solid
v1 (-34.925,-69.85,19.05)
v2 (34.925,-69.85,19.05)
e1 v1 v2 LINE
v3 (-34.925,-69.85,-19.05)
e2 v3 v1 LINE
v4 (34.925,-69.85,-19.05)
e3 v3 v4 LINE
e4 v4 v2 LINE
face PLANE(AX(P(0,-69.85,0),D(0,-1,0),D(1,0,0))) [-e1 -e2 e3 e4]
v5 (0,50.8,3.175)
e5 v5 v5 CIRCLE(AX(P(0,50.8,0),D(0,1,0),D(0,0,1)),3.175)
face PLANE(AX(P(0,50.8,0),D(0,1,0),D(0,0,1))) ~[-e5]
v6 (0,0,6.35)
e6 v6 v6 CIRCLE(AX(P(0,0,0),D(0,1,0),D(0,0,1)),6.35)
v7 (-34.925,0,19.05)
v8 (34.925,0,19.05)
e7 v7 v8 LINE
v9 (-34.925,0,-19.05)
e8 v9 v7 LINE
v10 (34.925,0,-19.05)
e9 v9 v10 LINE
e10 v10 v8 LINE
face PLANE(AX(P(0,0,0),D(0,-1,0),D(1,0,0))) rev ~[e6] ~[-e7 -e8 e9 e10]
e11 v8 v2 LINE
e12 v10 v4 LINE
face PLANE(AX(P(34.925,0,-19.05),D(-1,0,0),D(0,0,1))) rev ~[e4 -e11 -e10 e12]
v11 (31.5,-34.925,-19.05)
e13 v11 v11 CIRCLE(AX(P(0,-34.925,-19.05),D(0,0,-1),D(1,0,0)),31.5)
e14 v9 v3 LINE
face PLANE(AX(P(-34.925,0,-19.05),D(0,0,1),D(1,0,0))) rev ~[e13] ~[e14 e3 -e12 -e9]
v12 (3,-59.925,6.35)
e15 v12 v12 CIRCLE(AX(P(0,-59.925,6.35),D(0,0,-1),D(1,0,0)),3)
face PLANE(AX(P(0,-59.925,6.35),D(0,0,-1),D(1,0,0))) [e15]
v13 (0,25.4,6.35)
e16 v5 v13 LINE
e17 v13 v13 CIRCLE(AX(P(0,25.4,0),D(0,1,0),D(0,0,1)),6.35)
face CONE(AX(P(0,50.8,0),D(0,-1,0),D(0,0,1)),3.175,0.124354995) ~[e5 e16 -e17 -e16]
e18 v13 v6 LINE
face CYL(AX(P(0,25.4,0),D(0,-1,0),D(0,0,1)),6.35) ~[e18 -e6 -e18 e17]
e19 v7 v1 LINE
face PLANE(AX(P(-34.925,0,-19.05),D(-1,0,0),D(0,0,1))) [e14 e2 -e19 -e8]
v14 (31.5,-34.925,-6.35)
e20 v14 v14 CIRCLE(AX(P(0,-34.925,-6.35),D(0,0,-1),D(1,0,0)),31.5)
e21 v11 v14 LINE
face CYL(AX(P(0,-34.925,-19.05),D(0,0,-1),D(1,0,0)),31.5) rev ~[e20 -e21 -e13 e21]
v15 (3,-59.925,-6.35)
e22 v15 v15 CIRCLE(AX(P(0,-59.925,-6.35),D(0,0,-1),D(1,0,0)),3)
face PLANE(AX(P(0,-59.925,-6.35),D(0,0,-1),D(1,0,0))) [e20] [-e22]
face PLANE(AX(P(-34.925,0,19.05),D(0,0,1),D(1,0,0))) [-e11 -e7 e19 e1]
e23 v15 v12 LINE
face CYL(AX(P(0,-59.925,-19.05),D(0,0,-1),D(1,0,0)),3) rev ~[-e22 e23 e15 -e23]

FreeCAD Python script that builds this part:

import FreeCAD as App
import Part
import Sketcher
from FreeCAD import Vector
Q = App.Units.Quantity


def add_polygon(sketch, points):
    """Adds a closed chain of lines whose ends are joined by coincident constraints."""
    first, n = sketch.GeometryCount, len(points)
    for a, b in zip(points, points[1:] + points[:1]):
        sketch.addGeometry(Part.LineSegment(App.Vector(*a, 0), App.Vector(*b, 0)), False)
    for i in range(n):
        sketch.addConstraint(Sketcher.Constraint("Coincident", first + i, 2, first + (i + 1) % n, 1))

doc = App.newDocument("Part")
body = doc.addObject("PartDesign::Body", "Body")

# Sketch on YZ plane
sketch1 = doc.addObject("Sketcher::SketchObject", "Sketch")
body.addObject(sketch1)
sketch1.AttachmentSupport = (doc.YZ_Plane, [""])
sketch1.MapMode = "FlatFace"
add_polygon(sketch1, [(0, 6.35), (0, 0), (50.8, 0), (50.8, 3.175), (25.4, 6.35)])  # lines 0-4
sketch1.addConstraint([
    Sketcher.Constraint("Vertical", 0),
    Sketcher.Constraint("Horizontal", 1),
    Sketcher.Constraint("Vertical", 2),
    Sketcher.Constraint("Horizontal", 4),
    Sketcher.Constraint("Coincident", 0, 2, -1, 1),
    Sketcher.Constraint("DistanceX", 1, 1, 1, 2, Q("2 in")),
    Sketcher.Constraint("DistanceX", 4, 2, 4, 1, Q("1 in")),
    Sketcher.Constraint("DistanceY", 0, 2, 0, 1, Q("0.25 in")),
    Sketcher.Constraint("DistanceY", 2, 1, 2, 2, Q("0.125 in")),
])
revolution = doc.addObject("PartDesign::Revolution", "Revolution")
body.addObject(revolution)
revolution.Profile = sketch1
revolution.ReferenceAxis = (sketch1, ["H_Axis"])
revolution.Angle = 360

# Sketch on XZ plane
sketch2 = doc.addObject("Sketcher::SketchObject", "Sketch001")
body.addObject(sketch2)
sketch2.AttachmentSupport = (doc.XZ_Plane, [""])
sketch2.MapMode = "FlatFace"
add_polygon(sketch2, [(-34.925, 19.05), (-34.925, -19.05), (34.925, -19.05), (34.925, 19.05)])  # lines 0-3
sketch2.addConstraint([
    Sketcher.Constraint("Vertical", 0),
    Sketcher.Constraint("Horizontal", 1),
    Sketcher.Constraint("Vertical", 2),
    Sketcher.Constraint("Horizontal", 3),
    Sketcher.Constraint("Symmetric", 0, 2, 2, 2, -1, 1),
    Sketcher.Constraint("DistanceY", 0, 2, 0, 1, Q("1.5 in")),
    Sketcher.Constraint("DistanceX", 1, 1, 1, 2, Q("2.75 in")),
])
pad1 = doc.addObject("PartDesign::Pad", "Pad")
body.addObject(pad1)
pad1.Profile = sketch2
pad1.Length = Q("2.75 in")

# Sketch on XY plane
sketch3 = doc.addObject("Sketcher::SketchObject", "Sketch002")
body.addObject(sketch3)
sketch3.AttachmentSupport = (doc.XY_Plane, [""])
sketch3.MapMode = "FlatFace"
sketch3.AttachmentOffset = App.Placement(Vector(0, 0, -0.75 * 25.4), App.Rotation())
sketch3.addGeometry([
    Part.Circle(Vector(0, -34.925, 0), Vector(0, 0, 1), 31.5),
    Part.Circle(Vector(0, -59.925, 0), Vector(0, 0, 1), 3),
], False)
sketch3.addConstraint([
    Sketcher.Constraint("PointOnObject", 0, 3, -2),
    Sketcher.Constraint("PointOnObject", 1, 3, -2),
    Sketcher.Constraint("Diameter", 0, 63.0),
    Sketcher.Constraint("Diameter", 1, 6.0),
    Sketcher.Constraint("DistanceY", 0, 3, -1, 1, Q("1.375 in")),
    Sketcher.Constraint("DistanceY", 1, 3, -1, 1, 59.925),
])
pocket1 = doc.addObject("PartDesign::Pocket", "Pocket")
body.addObject(pocket1)
pocket1.Profile = sketch3
pocket1.Length = Q("0.5 in")
pocket1.Reversed = True

# Sketch on XY plane
sketch4 = doc.addObject("Sketcher::SketchObject", "Sketch003")
body.addObject(sketch4)
sketch4.AttachmentSupport = (doc.XY_Plane, [""])
sketch4.MapMode = "FlatFace"
sketch4.AttachmentOffset = App.Placement(Vector(0, 0, -0.75 * 25.4), App.Rotation())
sketch4.addGeometry(Part.Circle(Vector(0, -59.925, 0), Vector(0, 0, 1), 3), False)
sketch4.addConstraint([
    Sketcher.Constraint("PointOnObject", 0, 3, -2),
    Sketcher.Constraint("Diameter", 0, 6.0),
    Sketcher.Constraint("DistanceY", 0, 3, -1, 1, 59.925),
])
pocket2 = doc.addObject("PartDesign::Pocket", "Pocket001")
body.addObject(pocket2)
pocket2.Profile = sketch4
pocket2.Length = Q("1 in")
pocket2.Reversed = True

doc.recompute()
